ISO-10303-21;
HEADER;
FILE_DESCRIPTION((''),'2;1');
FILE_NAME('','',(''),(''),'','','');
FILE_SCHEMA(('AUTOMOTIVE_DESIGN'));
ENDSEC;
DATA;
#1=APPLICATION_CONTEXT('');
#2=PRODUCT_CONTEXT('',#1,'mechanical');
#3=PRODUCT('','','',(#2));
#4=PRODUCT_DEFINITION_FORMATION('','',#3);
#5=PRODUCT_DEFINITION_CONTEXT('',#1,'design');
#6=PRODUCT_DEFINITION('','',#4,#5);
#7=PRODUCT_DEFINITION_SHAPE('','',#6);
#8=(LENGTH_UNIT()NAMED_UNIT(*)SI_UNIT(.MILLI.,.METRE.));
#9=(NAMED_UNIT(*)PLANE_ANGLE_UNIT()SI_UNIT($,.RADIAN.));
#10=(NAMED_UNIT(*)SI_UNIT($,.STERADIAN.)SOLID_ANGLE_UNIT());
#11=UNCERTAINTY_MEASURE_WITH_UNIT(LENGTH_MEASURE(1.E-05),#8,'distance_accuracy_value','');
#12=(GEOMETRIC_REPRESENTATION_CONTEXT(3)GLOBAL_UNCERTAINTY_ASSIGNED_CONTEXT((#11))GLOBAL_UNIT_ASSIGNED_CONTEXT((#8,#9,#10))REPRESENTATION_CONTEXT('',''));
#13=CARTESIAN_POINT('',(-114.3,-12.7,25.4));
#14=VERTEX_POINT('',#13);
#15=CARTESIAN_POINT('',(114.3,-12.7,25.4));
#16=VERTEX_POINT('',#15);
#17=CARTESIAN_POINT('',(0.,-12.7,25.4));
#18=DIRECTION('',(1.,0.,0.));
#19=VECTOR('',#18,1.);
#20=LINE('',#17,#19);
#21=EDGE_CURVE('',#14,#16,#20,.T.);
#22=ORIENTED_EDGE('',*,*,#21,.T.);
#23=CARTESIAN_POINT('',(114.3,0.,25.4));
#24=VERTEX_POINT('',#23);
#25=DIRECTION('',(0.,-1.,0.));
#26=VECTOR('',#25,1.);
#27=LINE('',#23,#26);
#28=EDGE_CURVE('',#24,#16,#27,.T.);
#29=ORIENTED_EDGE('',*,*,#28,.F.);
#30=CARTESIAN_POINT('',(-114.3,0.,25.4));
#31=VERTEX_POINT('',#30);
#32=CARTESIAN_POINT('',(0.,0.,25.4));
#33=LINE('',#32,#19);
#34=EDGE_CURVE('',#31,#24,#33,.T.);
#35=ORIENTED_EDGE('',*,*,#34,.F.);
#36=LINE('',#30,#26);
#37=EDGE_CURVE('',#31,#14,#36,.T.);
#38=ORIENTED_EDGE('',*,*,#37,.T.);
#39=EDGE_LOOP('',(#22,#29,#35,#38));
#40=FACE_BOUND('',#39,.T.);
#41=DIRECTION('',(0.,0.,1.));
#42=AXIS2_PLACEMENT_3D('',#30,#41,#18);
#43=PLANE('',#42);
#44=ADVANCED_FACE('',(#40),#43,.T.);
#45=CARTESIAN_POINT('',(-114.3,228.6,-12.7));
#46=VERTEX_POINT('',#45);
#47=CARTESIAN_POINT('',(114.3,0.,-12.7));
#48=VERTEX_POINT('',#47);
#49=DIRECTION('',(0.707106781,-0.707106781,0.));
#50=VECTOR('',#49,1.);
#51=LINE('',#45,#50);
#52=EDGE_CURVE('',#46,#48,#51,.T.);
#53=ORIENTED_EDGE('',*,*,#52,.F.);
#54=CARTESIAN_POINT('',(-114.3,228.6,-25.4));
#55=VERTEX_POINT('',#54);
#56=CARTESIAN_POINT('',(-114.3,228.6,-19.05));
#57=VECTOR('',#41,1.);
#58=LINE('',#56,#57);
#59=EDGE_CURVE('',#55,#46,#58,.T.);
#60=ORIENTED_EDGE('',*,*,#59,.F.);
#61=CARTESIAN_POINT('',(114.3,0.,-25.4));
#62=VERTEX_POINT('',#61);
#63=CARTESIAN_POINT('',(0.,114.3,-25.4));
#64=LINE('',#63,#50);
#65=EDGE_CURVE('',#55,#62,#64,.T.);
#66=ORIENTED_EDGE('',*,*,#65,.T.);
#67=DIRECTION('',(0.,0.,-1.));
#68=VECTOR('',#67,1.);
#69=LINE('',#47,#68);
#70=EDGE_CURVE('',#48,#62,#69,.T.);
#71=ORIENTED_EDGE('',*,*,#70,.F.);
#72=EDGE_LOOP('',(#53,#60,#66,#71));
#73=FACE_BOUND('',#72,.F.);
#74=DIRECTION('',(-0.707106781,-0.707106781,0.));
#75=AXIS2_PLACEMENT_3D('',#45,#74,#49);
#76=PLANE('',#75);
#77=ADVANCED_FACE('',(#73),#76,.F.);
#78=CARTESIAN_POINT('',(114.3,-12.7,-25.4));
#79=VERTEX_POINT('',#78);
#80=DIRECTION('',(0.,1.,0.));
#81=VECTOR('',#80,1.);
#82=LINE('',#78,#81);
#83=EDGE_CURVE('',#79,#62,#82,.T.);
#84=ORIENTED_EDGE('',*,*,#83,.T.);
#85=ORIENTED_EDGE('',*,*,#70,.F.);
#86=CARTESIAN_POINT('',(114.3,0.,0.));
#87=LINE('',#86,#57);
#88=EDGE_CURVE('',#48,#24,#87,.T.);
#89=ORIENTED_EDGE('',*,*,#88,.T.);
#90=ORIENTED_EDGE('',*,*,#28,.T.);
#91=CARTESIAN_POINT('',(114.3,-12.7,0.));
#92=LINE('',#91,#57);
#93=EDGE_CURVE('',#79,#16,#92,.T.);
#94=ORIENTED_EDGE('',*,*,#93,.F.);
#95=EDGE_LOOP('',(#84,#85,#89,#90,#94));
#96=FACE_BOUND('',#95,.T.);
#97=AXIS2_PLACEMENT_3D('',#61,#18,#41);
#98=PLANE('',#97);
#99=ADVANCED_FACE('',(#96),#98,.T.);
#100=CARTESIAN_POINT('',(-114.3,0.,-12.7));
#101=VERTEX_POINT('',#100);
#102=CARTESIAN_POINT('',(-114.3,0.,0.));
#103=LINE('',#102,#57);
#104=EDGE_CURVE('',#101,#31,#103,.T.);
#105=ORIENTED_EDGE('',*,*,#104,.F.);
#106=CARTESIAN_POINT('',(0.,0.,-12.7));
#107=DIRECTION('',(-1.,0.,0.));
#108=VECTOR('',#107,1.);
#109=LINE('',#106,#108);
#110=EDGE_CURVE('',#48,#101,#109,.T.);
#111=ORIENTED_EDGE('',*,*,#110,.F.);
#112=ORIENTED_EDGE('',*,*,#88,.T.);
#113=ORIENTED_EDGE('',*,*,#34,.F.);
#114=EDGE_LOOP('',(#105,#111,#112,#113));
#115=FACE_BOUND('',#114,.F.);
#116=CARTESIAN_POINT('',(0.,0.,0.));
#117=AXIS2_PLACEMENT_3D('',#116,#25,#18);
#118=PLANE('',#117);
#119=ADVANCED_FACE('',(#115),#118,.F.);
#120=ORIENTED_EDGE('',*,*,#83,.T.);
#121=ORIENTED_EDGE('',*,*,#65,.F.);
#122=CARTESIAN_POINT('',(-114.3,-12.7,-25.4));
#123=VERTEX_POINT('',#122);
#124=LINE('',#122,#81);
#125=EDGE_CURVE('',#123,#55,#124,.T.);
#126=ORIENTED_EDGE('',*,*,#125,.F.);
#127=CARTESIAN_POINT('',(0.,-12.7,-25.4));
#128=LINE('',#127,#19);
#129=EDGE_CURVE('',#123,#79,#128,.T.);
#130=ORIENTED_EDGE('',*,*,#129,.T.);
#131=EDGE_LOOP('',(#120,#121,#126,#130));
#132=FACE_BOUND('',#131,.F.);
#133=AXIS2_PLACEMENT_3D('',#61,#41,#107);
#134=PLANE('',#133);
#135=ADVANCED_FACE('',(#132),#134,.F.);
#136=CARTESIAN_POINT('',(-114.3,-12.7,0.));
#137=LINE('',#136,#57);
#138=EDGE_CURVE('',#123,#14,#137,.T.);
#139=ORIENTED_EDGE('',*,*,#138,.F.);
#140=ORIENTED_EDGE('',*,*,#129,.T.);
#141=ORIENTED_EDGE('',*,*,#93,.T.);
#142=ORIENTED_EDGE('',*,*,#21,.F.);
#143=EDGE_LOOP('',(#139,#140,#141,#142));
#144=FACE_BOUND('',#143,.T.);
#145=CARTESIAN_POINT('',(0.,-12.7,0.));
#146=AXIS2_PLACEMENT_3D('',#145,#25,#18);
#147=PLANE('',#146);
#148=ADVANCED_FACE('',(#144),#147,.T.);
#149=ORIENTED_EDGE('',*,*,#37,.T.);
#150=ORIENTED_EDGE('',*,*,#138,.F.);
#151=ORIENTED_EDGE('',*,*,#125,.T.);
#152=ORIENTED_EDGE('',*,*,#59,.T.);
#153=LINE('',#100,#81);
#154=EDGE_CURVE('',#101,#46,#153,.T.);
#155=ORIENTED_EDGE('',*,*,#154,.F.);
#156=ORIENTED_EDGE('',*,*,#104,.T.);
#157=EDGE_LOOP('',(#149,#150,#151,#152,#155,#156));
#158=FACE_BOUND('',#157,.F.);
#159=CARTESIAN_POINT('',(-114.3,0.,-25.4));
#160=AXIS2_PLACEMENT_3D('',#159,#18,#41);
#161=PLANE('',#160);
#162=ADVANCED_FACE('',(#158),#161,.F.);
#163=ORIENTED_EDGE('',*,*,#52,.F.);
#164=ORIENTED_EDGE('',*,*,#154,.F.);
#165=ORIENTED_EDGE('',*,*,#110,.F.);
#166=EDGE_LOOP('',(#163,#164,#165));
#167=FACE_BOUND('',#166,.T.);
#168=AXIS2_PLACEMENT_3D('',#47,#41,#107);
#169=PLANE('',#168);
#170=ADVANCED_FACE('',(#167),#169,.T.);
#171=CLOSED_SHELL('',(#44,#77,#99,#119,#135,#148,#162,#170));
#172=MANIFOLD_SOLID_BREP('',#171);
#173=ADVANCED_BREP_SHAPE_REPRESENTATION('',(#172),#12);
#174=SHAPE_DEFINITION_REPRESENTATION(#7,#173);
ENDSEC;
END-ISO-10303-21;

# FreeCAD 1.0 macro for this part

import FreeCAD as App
import Part
import Sketcher
Q = App.Units.Quantity

doc = App.newDocument("Part")
body = doc.addObject("PartDesign::Body", "Body")

# Sketch on XZ plane
sketch1 = doc.addObject("Sketcher::SketchObject", "Sketch")
body.addObject(sketch1)
sketch1.AttachmentSupport = (doc.XZ_Plane, [""])
sketch1.MapMode = "FlatFace"
sketch1.addGeometry([
    Part.LineSegment(App.Vector(-114, 25, 0), App.Vector(-114, -25, 0)),
    Part.LineSegment(App.Vector(-114, -25, 0), App.Vector(114, -25, 0)),
    Part.LineSegment(App.Vector(114, -25, 0), App.Vector(114, 25, 0)),
    Part.LineSegment(App.Vector(114, 25, 0), App.Vector(-114, 25, 0)),
], False)
sketch1.addConstraint([
    Sketcher.Constraint("Coincident", 0, 2, 1, 1),
    Sketcher.Constraint("Coincident", 1, 2, 2, 1),
    Sketcher.Constraint("Coincident", 2, 2, 3, 1),
    Sketcher.Constraint("Coincident", 3, 2, 0, 1),
    Sketcher.Constraint("Vertical", 0),
    Sketcher.Constraint("Horizontal", 1),
    Sketcher.Constraint("Vertical", 2),
    Sketcher.Constraint("Horizontal", 3),
    Sketcher.Constraint("Symmetric", 0, 2, 2, 2, -1, 1),
    Sketcher.Constraint("DistanceX", 1, 1, 1, 2, Q("9 in")),
    Sketcher.Constraint("DistanceY", 0, 2, 0, 1, Q("2 in")),
])
pad1 = doc.addObject("PartDesign::Pad", "Pad")
body.addObject(pad1)
pad1.Profile = sketch1
pad1.Length = Q("0.5 in")

# Sketch on XZ plane
sketch2 = doc.addObject("Sketcher::SketchObject", "Sketch001")
body.addObject(sketch2)
sketch2.AttachmentSupport = (doc.XZ_Plane, [""])
sketch2.MapMode = "FlatFace"
sketch2.addGeometry([
    Part.LineSegment(App.Vector(114, -13, 0), App.Vector(114, -25, 0)),
    Part.LineSegment(App.Vector(114, -25, 0), App.Vector(-114, -25, 0)),
    Part.LineSegment(App.Vector(-114, -25, 0), App.Vector(-114, -13, 0)),
    Part.LineSegment(App.Vector(-114, -13, 0), App.Vector(114, -13, 0)),
], False)
sketch2.addConstraint([
    Sketcher.Constraint("Coincident", 0, 2, 1, 1),
    Sketcher.Constraint("Coincident", 1, 2, 2, 1),
    Sketcher.Constraint("Coincident", 2, 2, 3, 1),
    Sketcher.Constraint("Coincident", 3, 2, 0, 1),
    Sketcher.Constraint("Vertical", 0),
    Sketcher.Constraint("Horizontal", 1),
    Sketcher.Constraint("Vertical", 2),
    Sketcher.Constraint("Horizontal", 3),
    Sketcher.Constraint("DistanceX", 1, 2, 1, 1, Q("9 in")),
    Sketcher.Constraint("DistanceY", 0, 2, 0, 1, Q("0.5 in")),
    Sketcher.Constraint("DistanceY", 0, 2, -1, 1, Q("1 in")),
    Sketcher.Constraint("DistanceX", -1, 1, 0, 2, Q("4.5 in")),
])
pad2 = doc.addObject("PartDesign::Pad", "Pad001")
body.addObject(pad2)
pad2.Profile = sketch2
pad2.Length = Q("9 in")
pad2.Reversed = True

# Sketch on XY plane
sketch3 = doc.addObject("Sketcher::SketchObject", "Sketch002")
body.addObject(sketch3)
sketch3.AttachmentSupport = (doc.XY_Plane, [""])
sketch3.MapMode = "FlatFace"
sketch3.AttachmentOffset = App.Placement(App.Vector(0, 0, -0.5 * 25.4), App.Rotation())
sketch3.addGeometry([
    Part.LineSegment(App.Vector(114, 229, 0), App.Vector(-114, 229, 0)),
    Part.LineSegment(App.Vector(-114, 229, 0), App.Vector(114, 0, 0)),
    Part.LineSegment(App.Vector(114, 0, 0), App.Vector(114, 229, 0)),
], False)
sketch3.addConstraint([
    Sketcher.Constraint("Coincident", 0, 2, 1, 1),
    Sketcher.Constraint("Coincident", 1, 2, 2, 1),
    Sketcher.Constraint("Coincident", 2, 2, 0, 1),
    Sketcher.Constraint("Horizontal", 0),
    Sketcher.Constraint("Vertical", 2),
    Sketcher.Constraint("PointOnObject", 1, 2, -1),
    Sketcher.Constraint("Equal", 0, 2),
    Sketcher.Constraint("DistanceX", 0, 2, 0, 1, Q("9 in")),
    Sketcher.Constraint("DistanceX", 0, 2, -1, 1, Q("4.5 in")),
])
pocket1 = doc.addObject("PartDesign::Pocket", "Pocket")
body.addObject(pocket1)
pocket1.Profile = sketch3
pocket1.Length = Q("1 in")

doc.recompute()
